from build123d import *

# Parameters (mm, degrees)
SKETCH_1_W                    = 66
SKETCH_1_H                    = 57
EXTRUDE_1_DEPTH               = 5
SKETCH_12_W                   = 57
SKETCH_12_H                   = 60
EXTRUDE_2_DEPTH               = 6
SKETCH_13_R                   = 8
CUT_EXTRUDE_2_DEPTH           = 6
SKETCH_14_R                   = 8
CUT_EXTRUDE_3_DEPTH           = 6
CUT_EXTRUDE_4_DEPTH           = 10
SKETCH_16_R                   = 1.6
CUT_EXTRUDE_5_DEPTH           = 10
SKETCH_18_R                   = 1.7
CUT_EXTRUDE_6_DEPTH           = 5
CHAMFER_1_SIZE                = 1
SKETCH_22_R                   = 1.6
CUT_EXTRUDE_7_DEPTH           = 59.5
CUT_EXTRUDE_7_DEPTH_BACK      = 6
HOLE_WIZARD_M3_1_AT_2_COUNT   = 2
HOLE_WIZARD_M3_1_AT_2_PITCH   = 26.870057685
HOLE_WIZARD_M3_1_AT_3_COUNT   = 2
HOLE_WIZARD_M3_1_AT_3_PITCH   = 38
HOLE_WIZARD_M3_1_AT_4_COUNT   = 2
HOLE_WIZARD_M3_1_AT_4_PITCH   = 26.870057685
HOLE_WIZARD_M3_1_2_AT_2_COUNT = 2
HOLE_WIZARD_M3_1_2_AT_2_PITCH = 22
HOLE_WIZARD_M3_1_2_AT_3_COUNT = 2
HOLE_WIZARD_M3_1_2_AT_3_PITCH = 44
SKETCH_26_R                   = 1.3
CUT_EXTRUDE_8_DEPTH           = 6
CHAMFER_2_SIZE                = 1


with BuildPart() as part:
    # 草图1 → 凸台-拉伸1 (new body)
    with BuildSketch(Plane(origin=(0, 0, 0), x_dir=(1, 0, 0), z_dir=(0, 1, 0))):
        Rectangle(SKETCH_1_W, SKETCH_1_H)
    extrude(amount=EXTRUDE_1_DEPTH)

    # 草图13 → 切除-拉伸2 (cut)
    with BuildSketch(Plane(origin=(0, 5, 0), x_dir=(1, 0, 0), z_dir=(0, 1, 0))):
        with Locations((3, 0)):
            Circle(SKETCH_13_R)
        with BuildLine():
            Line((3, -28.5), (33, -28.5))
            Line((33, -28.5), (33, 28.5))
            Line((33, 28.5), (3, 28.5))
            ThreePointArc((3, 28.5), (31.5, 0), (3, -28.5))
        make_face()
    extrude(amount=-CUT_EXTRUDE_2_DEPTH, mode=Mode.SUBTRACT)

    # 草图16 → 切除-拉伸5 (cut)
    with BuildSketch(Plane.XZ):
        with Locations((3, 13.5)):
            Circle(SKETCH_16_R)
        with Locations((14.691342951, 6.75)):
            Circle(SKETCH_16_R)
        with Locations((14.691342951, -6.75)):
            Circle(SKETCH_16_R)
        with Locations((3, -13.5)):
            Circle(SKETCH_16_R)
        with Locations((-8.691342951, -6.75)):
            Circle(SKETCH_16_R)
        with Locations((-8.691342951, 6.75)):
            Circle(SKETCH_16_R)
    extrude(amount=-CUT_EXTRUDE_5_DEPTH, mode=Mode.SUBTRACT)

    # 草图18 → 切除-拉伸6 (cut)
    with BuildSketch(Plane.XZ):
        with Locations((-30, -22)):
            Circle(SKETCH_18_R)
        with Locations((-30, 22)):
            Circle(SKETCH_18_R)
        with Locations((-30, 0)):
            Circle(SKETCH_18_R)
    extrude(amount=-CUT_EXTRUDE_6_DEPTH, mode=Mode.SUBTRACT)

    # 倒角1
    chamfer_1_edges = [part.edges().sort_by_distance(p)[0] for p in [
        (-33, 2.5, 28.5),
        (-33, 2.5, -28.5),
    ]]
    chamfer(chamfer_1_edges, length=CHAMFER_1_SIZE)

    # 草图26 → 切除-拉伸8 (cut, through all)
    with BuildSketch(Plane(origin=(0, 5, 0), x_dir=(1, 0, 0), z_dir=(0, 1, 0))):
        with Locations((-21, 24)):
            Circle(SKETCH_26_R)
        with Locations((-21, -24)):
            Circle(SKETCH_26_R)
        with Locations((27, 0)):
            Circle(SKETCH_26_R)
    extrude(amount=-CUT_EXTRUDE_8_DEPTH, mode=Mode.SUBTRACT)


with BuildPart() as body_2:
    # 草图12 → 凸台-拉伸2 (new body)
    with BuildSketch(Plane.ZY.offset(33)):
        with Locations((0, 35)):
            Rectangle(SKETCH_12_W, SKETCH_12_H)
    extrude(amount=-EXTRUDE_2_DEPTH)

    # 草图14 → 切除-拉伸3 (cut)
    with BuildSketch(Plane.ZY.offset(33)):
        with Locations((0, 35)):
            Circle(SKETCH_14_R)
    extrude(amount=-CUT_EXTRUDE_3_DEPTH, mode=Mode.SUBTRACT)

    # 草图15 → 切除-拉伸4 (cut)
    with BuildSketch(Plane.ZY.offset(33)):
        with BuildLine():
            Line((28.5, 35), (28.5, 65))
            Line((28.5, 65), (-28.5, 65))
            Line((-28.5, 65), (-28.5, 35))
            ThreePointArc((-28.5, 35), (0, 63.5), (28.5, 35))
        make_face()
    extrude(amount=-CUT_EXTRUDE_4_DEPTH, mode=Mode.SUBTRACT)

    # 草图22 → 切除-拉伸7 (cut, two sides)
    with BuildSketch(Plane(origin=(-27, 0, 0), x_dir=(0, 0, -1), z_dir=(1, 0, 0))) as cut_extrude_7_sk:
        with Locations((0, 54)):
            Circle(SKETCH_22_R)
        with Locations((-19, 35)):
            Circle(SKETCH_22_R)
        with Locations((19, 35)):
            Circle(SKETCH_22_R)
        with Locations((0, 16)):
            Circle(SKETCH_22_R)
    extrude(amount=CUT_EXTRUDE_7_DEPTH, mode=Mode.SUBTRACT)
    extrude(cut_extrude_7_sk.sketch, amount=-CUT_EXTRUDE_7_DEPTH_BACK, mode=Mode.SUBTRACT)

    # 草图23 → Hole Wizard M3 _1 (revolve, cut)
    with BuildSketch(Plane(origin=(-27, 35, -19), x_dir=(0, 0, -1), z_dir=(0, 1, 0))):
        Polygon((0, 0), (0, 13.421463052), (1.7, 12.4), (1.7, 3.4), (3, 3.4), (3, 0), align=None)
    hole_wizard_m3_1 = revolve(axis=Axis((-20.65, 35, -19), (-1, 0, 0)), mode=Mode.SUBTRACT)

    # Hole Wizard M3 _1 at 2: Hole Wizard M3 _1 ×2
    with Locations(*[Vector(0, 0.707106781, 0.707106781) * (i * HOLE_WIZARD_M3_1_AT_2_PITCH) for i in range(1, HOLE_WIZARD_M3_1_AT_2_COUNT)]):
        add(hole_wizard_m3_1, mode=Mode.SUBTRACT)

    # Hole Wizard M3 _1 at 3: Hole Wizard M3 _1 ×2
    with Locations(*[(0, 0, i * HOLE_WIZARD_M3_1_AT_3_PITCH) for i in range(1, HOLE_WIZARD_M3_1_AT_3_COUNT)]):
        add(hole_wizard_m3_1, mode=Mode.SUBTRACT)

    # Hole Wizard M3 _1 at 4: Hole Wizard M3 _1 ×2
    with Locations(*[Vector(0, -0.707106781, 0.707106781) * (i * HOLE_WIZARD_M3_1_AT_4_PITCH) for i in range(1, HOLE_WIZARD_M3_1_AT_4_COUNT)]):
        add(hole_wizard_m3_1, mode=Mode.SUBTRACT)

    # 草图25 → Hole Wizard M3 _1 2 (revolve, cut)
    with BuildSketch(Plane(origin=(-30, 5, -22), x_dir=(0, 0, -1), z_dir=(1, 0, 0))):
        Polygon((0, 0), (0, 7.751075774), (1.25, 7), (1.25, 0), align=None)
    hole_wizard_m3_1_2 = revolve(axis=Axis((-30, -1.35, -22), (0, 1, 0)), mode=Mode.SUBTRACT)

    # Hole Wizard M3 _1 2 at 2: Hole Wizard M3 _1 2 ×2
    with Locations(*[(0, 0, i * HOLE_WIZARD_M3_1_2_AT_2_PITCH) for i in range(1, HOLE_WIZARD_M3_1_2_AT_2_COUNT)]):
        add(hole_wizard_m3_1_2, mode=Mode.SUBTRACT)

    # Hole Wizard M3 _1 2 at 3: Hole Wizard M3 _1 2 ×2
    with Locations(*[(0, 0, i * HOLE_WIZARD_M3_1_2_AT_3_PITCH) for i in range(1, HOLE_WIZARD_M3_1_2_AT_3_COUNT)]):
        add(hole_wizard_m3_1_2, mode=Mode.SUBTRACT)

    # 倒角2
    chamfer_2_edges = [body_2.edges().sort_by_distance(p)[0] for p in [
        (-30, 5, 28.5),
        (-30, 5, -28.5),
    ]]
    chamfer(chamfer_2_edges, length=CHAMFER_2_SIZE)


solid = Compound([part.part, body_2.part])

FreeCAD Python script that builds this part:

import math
import FreeCAD as App
import Part
import Sketcher
Q = App.Units.Quantity


def edges_at(feature, points):
    """Names of the edges that pass closest to the given points."""
    edges = feature.Shape.Edges
    near = lambda p: min(range(len(edges)), key=lambda i: edges[i].distToShape(Part.Vertex(*p))[0])
    return sorted({f"Edge{near(p) + 1}" for p in points})


def add_polygon(sketch, points):
    """Adds a closed chain of lines whose ends are joined by coincident constraints."""
    first, n = sketch.GeometryCount, len(points)
    for a, b in zip(points, points[1:] + points[:1]):
        sketch.addGeometry(Part.LineSegment(App.Vector(*a, 0), App.Vector(*b, 0)), False)
    for i in range(n):
        sketch.addConstraint(Sketcher.Constraint("Coincident", first + i, 2, first + (i + 1) % n, 1))

doc = App.newDocument("Part")
body = doc.addObject("PartDesign::Body", "Body")

sketch1 = body.newObject("Sketcher::SketchObject", "Sketch")
sketch1.AttachmentSupport = (doc.getObject("XZ_Plane"), [""])
sketch1.MapMode = "FlatFace"
add_polygon(sketch1, [(-33, -28.5), (-33, 28.5), (33, 28.5), (33, -28.5)])
sketch1.addConstraint([
    Sketcher.Constraint("Vertical", 0),
    Sketcher.Constraint("Horizontal", 1),
    Sketcher.Constraint("Vertical", 2),
    Sketcher.Constraint("Horizontal", 3),
    Sketcher.Constraint("Symmetric", 0, 2, 2, 2, -1, 1),
    Sketcher.Constraint("DistanceX", 1, 1, 1, 2, Q("66 mm")),
    Sketcher.Constraint("DistanceY", 0, 1, 0, 2, Q("57 mm")),
])
pad1 = body.newObject("PartDesign::Pad", "Pad")
pad1.Profile = sketch1
pad1.Length = 5
pad1.Reversed = True

sketch2 = body.newObject("Sketcher::SketchObject", "Sketch001")
sketch2.AttachmentSupport = (doc.getObject("XZ_Plane"), [""])
sketch2.MapMode = "FlatFace"
sketch2.AttachmentOffset = App.Placement(App.Vector(0, 0, -5), App.Rotation())
sketch2.addGeometry([
    Part.Circle(App.Vector(3, 0, 0), App.Vector(0, 0, 1), 8),
    Part.LineSegment(App.Vector(3, 28.5, 0), App.Vector(33, 28.5, 0)),
    Part.LineSegment(App.Vector(33, 28.5, 0), App.Vector(33, -28.5, 0)),
    Part.LineSegment(App.Vector(33, -28.5, 0), App.Vector(3, -28.5, 0)),
    Part.ArcOfCircle(Part.Circle(App.Vector(3, 0, 0), App.Vector(0, 0, 1), 28.5), math.radians(-90), math.radians(90)),
], False)
sketch2.addConstraint([
    Sketcher.Constraint("Coincident", 1, 2, 2, 1),
    Sketcher.Constraint("Coincident", 2, 2, 3, 1),
    Sketcher.Constraint("Tangent", 3, 2, 4, 1),
    Sketcher.Constraint("Tangent", 4, 2, 1, 1),
    Sketcher.Constraint("Horizontal", 1),
    Sketcher.Constraint("Vertical", 2),
    Sketcher.Constraint("Horizontal", 3),
    Sketcher.Constraint("Coincident", 4, 3, 0, 3),
    Sketcher.Constraint("PointOnObject", 0, 3, -1),
    Sketcher.Constraint("Diameter", 0, Q("16 mm")),
    Sketcher.Constraint("Radius", 4, Q("28.5 mm")),
    Sketcher.Constraint("DistanceX", 1, 1, 1, 2, Q("30 mm")),
    Sketcher.Constraint("DistanceX", -1, 1, 0, 3, Q("3 mm")),
])
pocket1 = body.newObject("PartDesign::Pocket", "Pocket")
pocket1.Profile = sketch2
pocket1.Length = 6
pocket1.Reversed = True

sketch3 = body.newObject("Sketcher::SketchObject", "Sketch002")
sketch3.AttachmentSupport = (doc.getObject("XZ_Plane"), [""])
sketch3.MapMode = "FlatFace"
sketch3.addGeometry([
    Part.Circle(App.Vector(3, 13.5, 0), App.Vector(0, 0, 1), 1.6),
    Part.Circle(App.Vector(14.691343, 6.75, 0), App.Vector(0, 0, 1), 1.6),
    Part.Circle(App.Vector(14.691343, -6.75, 0), App.Vector(0, 0, 1), 1.6),
    Part.Circle(App.Vector(3, -13.5, 0), App.Vector(0, 0, 1), 1.6),
    Part.Circle(App.Vector(-8.691343, -6.75, 0), App.Vector(0, 0, 1), 1.6),
    Part.Circle(App.Vector(-8.691343, 6.75, 0), App.Vector(0, 0, 1), 1.6),
], False)
sketch3.addConstraint([
    Sketcher.Constraint("Equal", 0, 1),
    Sketcher.Constraint("Equal", 1, 2),
    Sketcher.Constraint("Equal", 2, 3),
    Sketcher.Constraint("Equal", 3, 4),
    Sketcher.Constraint("Equal", 4, 5),
    Sketcher.Constraint("Symmetric", 1, 3, 2, 3, -1),
    Sketcher.Constraint("Symmetric", 0, 3, 3, 3, -1),
    Sketcher.Constraint("Symmetric", 4, 3, 5, 3, -1),
    Sketcher.Constraint("Horizontal", 2, 3, 4, 3),
    Sketcher.Constraint("Diameter", 0, Q("3.2 mm")),
    Sketcher.Constraint("DistanceX", -1, 1, 0, 3, Q("3 mm")),
    Sketcher.Constraint("DistanceY", 3, 3, 0, 3, Q("27 mm")),
    Sketcher.Constraint("DistanceY", 2, 3, 1, 3, Q("13.5 mm")),
    Sketcher.Constraint("DistanceX", -1, 1, 1, 3, Q("14.691343 mm")),
    Sketcher.Constraint("DistanceX", 4, 3, -1, 1, Q("8.691343 mm")),
])
pocket2 = body.newObject("PartDesign::Pocket", "Pocket001")
pocket2.Profile = sketch3
pocket2.Length = 10

sketch4 = body.newObject("Sketcher::SketchObject", "Sketch003")
sketch4.AttachmentSupport = (doc.getObject("XZ_Plane"), [""])
sketch4.MapMode = "FlatFace"
sketch4.addGeometry([
    Part.Circle(App.Vector(-30, -22, 0), App.Vector(0, 0, 1), 1.7),
    Part.Circle(App.Vector(-30, 22, 0), App.Vector(0, 0, 1), 1.7),
    Part.Circle(App.Vector(-30, 0, 0), App.Vector(0, 0, 1), 1.7),
], False)
sketch4.addConstraint([
    Sketcher.Constraint("Equal", 0, 1),
    Sketcher.Constraint("Equal", 1, 2),
    Sketcher.Constraint("Symmetric", 0, 3, 1, 3, -1),
    Sketcher.Constraint("PointOnObject", 2, 3, -1),
    Sketcher.Constraint("Vertical", 1, 3, 2, 3),
    Sketcher.Constraint("Diameter", 0, Q("3.4 mm")),
    Sketcher.Constraint("DistanceX", 0, 3, -1, 1, Q("30 mm")),
    Sketcher.Constraint("DistanceY", 0, 3, -1, 1, Q("22 mm")),
])
pocket3 = body.newObject("PartDesign::Pocket", "Pocket002")
pocket3.Profile = sketch4
pocket3.Length = 5
doc.recompute()

chamfer = body.newObject("PartDesign::Chamfer", "Chamfer")
chamfer.Base = (pocket3, edges_at(pocket3, [(-33, 2.5, 28.5), (-33, 2.5, -28.5)]))
chamfer.Size = 1

sketch5 = body.newObject("Sketcher::SketchObject", "Sketch004")
sketch5.AttachmentSupport = (doc.getObject("XZ_Plane"), [""])
sketch5.MapMode = "FlatFace"
sketch5.AttachmentOffset = App.Placement(App.Vector(0, 0, -5), App.Rotation())
sketch5.addGeometry([
    Part.Circle(App.Vector(-21, -24, 0), App.Vector(0, 0, 1), 1.3),
    Part.Circle(App.Vector(-21, 24, 0), App.Vector(0, 0, 1), 1.3),
    Part.Circle(App.Vector(27, 0, 0), App.Vector(0, 0, 1), 1.3),
], False)
sketch5.addConstraint([
    Sketcher.Constraint("Equal", 0, 1),
    Sketcher.Constraint("Equal", 1, 2),
    Sketcher.Constraint("Symmetric", 0, 3, 1, 3, -1),
    Sketcher.Constraint("PointOnObject", 2, 3, -1),
    Sketcher.Constraint("Diameter", 0, Q("2.6 mm")),
    Sketcher.Constraint("DistanceX", 0, 3, -1, 1, Q("21 mm")),
    Sketcher.Constraint("DistanceY", 0, 3, -1, 1, Q("24 mm")),
    Sketcher.Constraint("DistanceX", -1, 1, 2, 3, Q("27 mm")),
])
pocket4 = body.newObject("PartDesign::Pocket", "Pocket003")
pocket4.Profile = sketch5
pocket4.Type = "ThroughAll"
pocket4.Reversed = True
body2 = doc.addObject("PartDesign::Body", "Body001")

sketch6 = body2.newObject("Sketcher::SketchObject", "Sketch005")
sketch6.AttachmentSupport = (doc.getObject("YZ_Plane001"), [""])
sketch6.MapMode = "FlatFace"
sketch6.AttachmentOffset = App.Placement(App.Vector(0, 0, -33), App.Rotation())
add_polygon(sketch6, [(65, -28.5), (5, -28.5), (5, 28.5), (65, 28.5)])
sketch6.addConstraint([
    Sketcher.Constraint("Horizontal", 0),
    Sketcher.Constraint("Vertical", 1),
    Sketcher.Constraint("Horizontal", 2),
    Sketcher.Constraint("Vertical", 3),
    Sketcher.Constraint("DistanceX", 0, 2, 0, 1, Q("60 mm")),
    Sketcher.Constraint("DistanceY", 1, 1, 1, 2, Q("57 mm")),
    Sketcher.Constraint("DistanceX", -1, 1, 0, 2, Q("5 mm")),
    Sketcher.Constraint("DistanceY", 0, 2, -1, 1, Q("28.5 mm")),
])
pad2 = body2.newObject("PartDesign::Pad", "Pad001")
pad2.Profile = sketch6
pad2.Length = 6

sketch7 = body2.newObject("Sketcher::SketchObject", "Sketch006")
sketch7.AttachmentSupport = (doc.getObject("YZ_Plane001"), [""])
sketch7.MapMode = "FlatFace"
sketch7.AttachmentOffset = App.Placement(App.Vector(0, 0, -33), App.Rotation())
sketch7.addGeometry(Part.Circle(App.Vector(35, 0, 0), App.Vector(0, 0, 1), 8), False)
sketch7.addConstraint([
    Sketcher.Constraint("PointOnObject", 0, 3, -1),
    Sketcher.Constraint("Diameter", 0, Q("16 mm")),
    Sketcher.Constraint("DistanceX", -1, 1, 0, 3, Q("35 mm")),
])
pocket5 = body2.newObject("PartDesign::Pocket", "Pocket004")
pocket5.Profile = sketch7
pocket5.Length = 6
pocket5.Reversed = True

sketch8 = body2.newObject("Sketcher::SketchObject", "Sketch007")
sketch8.AttachmentSupport = (doc.getObject("YZ_Plane001"), [""])
sketch8.MapMode = "FlatFace"
sketch8.AttachmentOffset = App.Placement(App.Vector(0, 0, -33), App.Rotation())
sketch8.addGeometry([
    Part.LineSegment(App.Vector(35, 28.5, 0), App.Vector(65, 28.5, 0)),
    Part.LineSegment(App.Vector(65, 28.5, 0), App.Vector(65, -28.5, 0)),
    Part.LineSegment(App.Vector(65, -28.5, 0), App.Vector(35, -28.5, 0)),
    Part.ArcOfCircle(Part.Circle(App.Vector(35, 0, 0), App.Vector(0, 0, 1), 28.5), math.radians(-90), math.radians(90)),
], False)
sketch8.addConstraint([
    Sketcher.Constraint("Coincident", 0, 2, 1, 1),
    Sketcher.Constraint("Coincident", 1, 2, 2, 1),
    Sketcher.Constraint("Tangent", 2, 2, 3, 1),
    Sketcher.Constraint("Tangent", 3, 2, 0, 1),
    Sketcher.Constraint("Horizontal", 0),
    Sketcher.Constraint("Vertical", 1),
    Sketcher.Constraint("Horizontal", 2),
    Sketcher.Constraint("PointOnObject", 3, 3, -1),
    Sketcher.Constraint("Radius", 3, Q("28.5 mm")),
    Sketcher.Constraint("DistanceX", 0, 1, 0, 2, Q("30 mm")),
    Sketcher.Constraint("DistanceX", -1, 1, 3, 3, Q("35 mm")),
])
pocket6 = body2.newObject("PartDesign::Pocket", "Pocket005")
pocket6.Profile = sketch8
pocket6.Length = 10
pocket6.Reversed = True

sketch9 = body2.newObject("Sketcher::SketchObject", "Sketch008")
sketch9.AttachmentSupport = (doc.getObject("YZ_Plane001"), [""])
sketch9.MapMode = "FlatFace"
sketch9.AttachmentOffset = App.Placement(App.Vector(0, 0, -27), App.Rotation())
sketch9.addGeometry([
    Part.Circle(App.Vector(54, 0, 0), App.Vector(0, 0, 1), 1.6),
    Part.Circle(App.Vector(35, 19, 0), App.Vector(0, 0, 1), 1.6),
    Part.Circle(App.Vector(35, -19, 0), App.Vector(0, 0, 1), 1.6),
    Part.Circle(App.Vector(16, 0, 0), App.Vector(0, 0, 1), 1.6),
], False)
sketch9.addConstraint([
    Sketcher.Constraint("Equal", 0, 1),
    Sketcher.Constraint("Equal", 1, 2),
    Sketcher.Constraint("Equal", 2, 3),
    Sketcher.Constraint("Symmetric", 1, 3, 2, 3, -1),
    Sketcher.Constraint("PointOnObject", 0, 3, -1),
    Sketcher.Constraint("PointOnObject", 3, 3, -1),
    Sketcher.Constraint("Diameter", 0, Q("3.2 mm")),
    Sketcher.Constraint("DistanceX", -1, 1, 0, 3, Q("54 mm")),
    Sketcher.Constraint("DistanceX", -1, 1, 1, 3, Q("35 mm")),
    Sketcher.Constraint("DistanceY", -1, 1, 1, 3, Q("19 mm")),
    Sketcher.Constraint("DistanceX", -1, 1, 3, 3, Q("16 mm")),
])
pocket7 = body2.newObject("PartDesign::Pocket", "Pocket006")
pocket7.Profile = sketch9
pocket7.Type = "ThroughAll"
pocket7.Midplane = True

sketch10 = body2.newObject("Sketcher::SketchObject", "Sketch009")
sketch10.AttachmentSupport = (doc.getObject("XZ_Plane001"), [""])
sketch10.MapMode = "FlatFace"
sketch10.AttachmentOffset = App.Placement(App.Vector(0, 0, -35), App.Rotation())
add_polygon(sketch10, [(-40.421463, -19), (-27, -19), (-27, -22), (-30.4, -22), (-30.4, -20.7), (-39.4, -20.7)])
sketch10.addGeometry(Part.LineSegment(App.Vector(-27, -19, 0), App.Vector(-40.421463, -19, 0)), True)
sketch10.addConstraint([
    Sketcher.Constraint("Horizontal", 0),
    Sketcher.Constraint("Vertical", 1),
    Sketcher.Constraint("Horizontal", 2),
    Sketcher.Constraint("Vertical", 3),
    Sketcher.Constraint("Horizontal", 4),
    Sketcher.Constraint("Horizontal", 6),
    Sketcher.Constraint("Coincident", 6, 1, 0, 2),
    Sketcher.Constraint("Equal", 0, 6),
    Sketcher.Constraint("DistanceX", 4, 2, 4, 1, Q("9 mm")),
    Sketcher.Constraint("DistanceY", 1, 2, 1, 1, Q("3 mm")),
    Sketcher.Constraint("Angle", 5, Q("121 deg")),
    Sketcher.Constraint("DistanceX", 2, 2, 2, 1, Q("3.4 mm")),
    Sketcher.Constraint("DistanceY", 3, 1, 3, 2, Q("1.3 mm")),
    Sketcher.Constraint("DistanceX", 0, 2, -1, 1, Q("27 mm")),
    Sketcher.Constraint("DistanceY", 0, 2, -1, 1, Q("19 mm")),
])
groove = body2.newObject("PartDesign::Groove", "Groove")
groove.Profile = sketch10
groove.ReferenceAxis = (sketch10, ["Axis0"])
groove.Angle = 360
doc.recompute()

datumline = body2.newObject("PartDesign::Line", "DatumLine")
datumline.Placement = App.Placement(App.Vector(0, 0, 0), App.Rotation(App.Vector(0, 0, 1), App.Vector(0, 0.707106781, 0.707106781)))
linearpattern = body2.newObject("PartDesign::LinearPattern", "LinearPattern")
linearpattern.Originals = [groove]
linearpattern.Direction = (datumline, [""])
linearpattern.Mode = "offset"
linearpattern.Offset = 26.870058
linearpattern.Occurrences = 2
body2.Tip = linearpattern
doc.recompute()

linearpattern2 = body2.newObject("PartDesign::LinearPattern", "LinearPattern001")
linearpattern2.Originals = [groove]
linearpattern2.Direction = (doc.getObject("Z_Axis001"), [""])
linearpattern2.Mode = "offset"
linearpattern2.Offset = 38
linearpattern2.Occurrences = 2
body2.Tip = linearpattern2
doc.recompute()

datumline2 = body2.newObject("PartDesign::Line", "DatumLine001")
datumline2.Placement = App.Placement(App.Vector(0, 0, 0), App.Rotation(App.Vector(0, 0, 1), App.Vector(0, -0.707106781, 0.707106781)))
linearpattern3 = body2.newObject("PartDesign::LinearPattern", "LinearPattern002")
linearpattern3.Originals = [groove]
linearpattern3.Direction = (datumline2, [""])
linearpattern3.Mode = "offset"
linearpattern3.Offset = 26.870058
linearpattern3.Occurrences = 2
body2.Tip = linearpattern3

sketch11 = body2.newObject("Sketcher::SketchObject", "Sketch010")
sketch11.AttachmentSupport = (doc.getObject("YZ_Plane001"), [""])
sketch11.MapMode = "FlatFace"
sketch11.AttachmentOffset = App.Placement(App.Vector(0, 0, -30), App.Rotation())
add_polygon(sketch11, [(12.751076, -22), (5, -22), (5, -23.25), (12, -23.25)])
sketch11.addGeometry(Part.LineSegment(App.Vector(5, -22, 0), App.Vector(12.751076, -22, 0)), True)
sketch11.addConstraint([
    Sketcher.Constraint("Horizontal", 0),
    Sketcher.Constraint("Vertical", 1),
    Sketcher.Constraint("Horizontal", 2),
    Sketcher.Constraint("Horizontal", 4),
    Sketcher.Constraint("Coincident", 4, 1, 0, 2),
    Sketcher.Constraint("Equal", 0, 4),
    Sketcher.Constraint("DistanceX", 2, 1, 2, 2, Q("7 mm")),
    Sketcher.Constraint("Angle", 3, Q("59 deg")),
    Sketcher.Constraint("DistanceX", -1, 1, 0, 2, Q("5 mm")),
    Sketcher.Constraint("DistanceY", 0, 2, -1, 1, Q("22 mm")),
    Sketcher.Constraint("DistanceY", 1, 2, 1, 1, Q("1.25 mm")),
])
groove2 = body2.newObject("PartDesign::Groove", "Groove001")
groove2.Profile = sketch11
groove2.ReferenceAxis = (sketch11, ["Axis0"])
groove2.Angle = 360
doc.recompute()

linearpattern4 = body2.newObject("PartDesign::LinearPattern", "LinearPattern003")
linearpattern4.Originals = [groove2]
linearpattern4.Direction = (doc.getObject("Z_Axis001"), [""])
linearpattern4.Mode = "offset"
linearpattern4.Offset = 22
linearpattern4.Occurrences = 2
body2.Tip = linearpattern4
doc.recompute()

linearpattern5 = body2.newObject("PartDesign::LinearPattern", "LinearPattern004")
linearpattern5.Originals = [groove2]
linearpattern5.Direction = (doc.getObject("Z_Axis001"), [""])
linearpattern5.Mode = "offset"
linearpattern5.Offset = 44
linearpattern5.Occurrences = 2
body2.Tip = linearpattern5
doc.recompute()

chamfer2 = body2.newObject("PartDesign::Chamfer", "Chamfer001")
chamfer2.Base = (linearpattern5, edges_at(linearpattern5, [(-30, 5, 28.5), (-30, 5, -28.5)]))
chamfer2.Size = 1

doc.recompute()
